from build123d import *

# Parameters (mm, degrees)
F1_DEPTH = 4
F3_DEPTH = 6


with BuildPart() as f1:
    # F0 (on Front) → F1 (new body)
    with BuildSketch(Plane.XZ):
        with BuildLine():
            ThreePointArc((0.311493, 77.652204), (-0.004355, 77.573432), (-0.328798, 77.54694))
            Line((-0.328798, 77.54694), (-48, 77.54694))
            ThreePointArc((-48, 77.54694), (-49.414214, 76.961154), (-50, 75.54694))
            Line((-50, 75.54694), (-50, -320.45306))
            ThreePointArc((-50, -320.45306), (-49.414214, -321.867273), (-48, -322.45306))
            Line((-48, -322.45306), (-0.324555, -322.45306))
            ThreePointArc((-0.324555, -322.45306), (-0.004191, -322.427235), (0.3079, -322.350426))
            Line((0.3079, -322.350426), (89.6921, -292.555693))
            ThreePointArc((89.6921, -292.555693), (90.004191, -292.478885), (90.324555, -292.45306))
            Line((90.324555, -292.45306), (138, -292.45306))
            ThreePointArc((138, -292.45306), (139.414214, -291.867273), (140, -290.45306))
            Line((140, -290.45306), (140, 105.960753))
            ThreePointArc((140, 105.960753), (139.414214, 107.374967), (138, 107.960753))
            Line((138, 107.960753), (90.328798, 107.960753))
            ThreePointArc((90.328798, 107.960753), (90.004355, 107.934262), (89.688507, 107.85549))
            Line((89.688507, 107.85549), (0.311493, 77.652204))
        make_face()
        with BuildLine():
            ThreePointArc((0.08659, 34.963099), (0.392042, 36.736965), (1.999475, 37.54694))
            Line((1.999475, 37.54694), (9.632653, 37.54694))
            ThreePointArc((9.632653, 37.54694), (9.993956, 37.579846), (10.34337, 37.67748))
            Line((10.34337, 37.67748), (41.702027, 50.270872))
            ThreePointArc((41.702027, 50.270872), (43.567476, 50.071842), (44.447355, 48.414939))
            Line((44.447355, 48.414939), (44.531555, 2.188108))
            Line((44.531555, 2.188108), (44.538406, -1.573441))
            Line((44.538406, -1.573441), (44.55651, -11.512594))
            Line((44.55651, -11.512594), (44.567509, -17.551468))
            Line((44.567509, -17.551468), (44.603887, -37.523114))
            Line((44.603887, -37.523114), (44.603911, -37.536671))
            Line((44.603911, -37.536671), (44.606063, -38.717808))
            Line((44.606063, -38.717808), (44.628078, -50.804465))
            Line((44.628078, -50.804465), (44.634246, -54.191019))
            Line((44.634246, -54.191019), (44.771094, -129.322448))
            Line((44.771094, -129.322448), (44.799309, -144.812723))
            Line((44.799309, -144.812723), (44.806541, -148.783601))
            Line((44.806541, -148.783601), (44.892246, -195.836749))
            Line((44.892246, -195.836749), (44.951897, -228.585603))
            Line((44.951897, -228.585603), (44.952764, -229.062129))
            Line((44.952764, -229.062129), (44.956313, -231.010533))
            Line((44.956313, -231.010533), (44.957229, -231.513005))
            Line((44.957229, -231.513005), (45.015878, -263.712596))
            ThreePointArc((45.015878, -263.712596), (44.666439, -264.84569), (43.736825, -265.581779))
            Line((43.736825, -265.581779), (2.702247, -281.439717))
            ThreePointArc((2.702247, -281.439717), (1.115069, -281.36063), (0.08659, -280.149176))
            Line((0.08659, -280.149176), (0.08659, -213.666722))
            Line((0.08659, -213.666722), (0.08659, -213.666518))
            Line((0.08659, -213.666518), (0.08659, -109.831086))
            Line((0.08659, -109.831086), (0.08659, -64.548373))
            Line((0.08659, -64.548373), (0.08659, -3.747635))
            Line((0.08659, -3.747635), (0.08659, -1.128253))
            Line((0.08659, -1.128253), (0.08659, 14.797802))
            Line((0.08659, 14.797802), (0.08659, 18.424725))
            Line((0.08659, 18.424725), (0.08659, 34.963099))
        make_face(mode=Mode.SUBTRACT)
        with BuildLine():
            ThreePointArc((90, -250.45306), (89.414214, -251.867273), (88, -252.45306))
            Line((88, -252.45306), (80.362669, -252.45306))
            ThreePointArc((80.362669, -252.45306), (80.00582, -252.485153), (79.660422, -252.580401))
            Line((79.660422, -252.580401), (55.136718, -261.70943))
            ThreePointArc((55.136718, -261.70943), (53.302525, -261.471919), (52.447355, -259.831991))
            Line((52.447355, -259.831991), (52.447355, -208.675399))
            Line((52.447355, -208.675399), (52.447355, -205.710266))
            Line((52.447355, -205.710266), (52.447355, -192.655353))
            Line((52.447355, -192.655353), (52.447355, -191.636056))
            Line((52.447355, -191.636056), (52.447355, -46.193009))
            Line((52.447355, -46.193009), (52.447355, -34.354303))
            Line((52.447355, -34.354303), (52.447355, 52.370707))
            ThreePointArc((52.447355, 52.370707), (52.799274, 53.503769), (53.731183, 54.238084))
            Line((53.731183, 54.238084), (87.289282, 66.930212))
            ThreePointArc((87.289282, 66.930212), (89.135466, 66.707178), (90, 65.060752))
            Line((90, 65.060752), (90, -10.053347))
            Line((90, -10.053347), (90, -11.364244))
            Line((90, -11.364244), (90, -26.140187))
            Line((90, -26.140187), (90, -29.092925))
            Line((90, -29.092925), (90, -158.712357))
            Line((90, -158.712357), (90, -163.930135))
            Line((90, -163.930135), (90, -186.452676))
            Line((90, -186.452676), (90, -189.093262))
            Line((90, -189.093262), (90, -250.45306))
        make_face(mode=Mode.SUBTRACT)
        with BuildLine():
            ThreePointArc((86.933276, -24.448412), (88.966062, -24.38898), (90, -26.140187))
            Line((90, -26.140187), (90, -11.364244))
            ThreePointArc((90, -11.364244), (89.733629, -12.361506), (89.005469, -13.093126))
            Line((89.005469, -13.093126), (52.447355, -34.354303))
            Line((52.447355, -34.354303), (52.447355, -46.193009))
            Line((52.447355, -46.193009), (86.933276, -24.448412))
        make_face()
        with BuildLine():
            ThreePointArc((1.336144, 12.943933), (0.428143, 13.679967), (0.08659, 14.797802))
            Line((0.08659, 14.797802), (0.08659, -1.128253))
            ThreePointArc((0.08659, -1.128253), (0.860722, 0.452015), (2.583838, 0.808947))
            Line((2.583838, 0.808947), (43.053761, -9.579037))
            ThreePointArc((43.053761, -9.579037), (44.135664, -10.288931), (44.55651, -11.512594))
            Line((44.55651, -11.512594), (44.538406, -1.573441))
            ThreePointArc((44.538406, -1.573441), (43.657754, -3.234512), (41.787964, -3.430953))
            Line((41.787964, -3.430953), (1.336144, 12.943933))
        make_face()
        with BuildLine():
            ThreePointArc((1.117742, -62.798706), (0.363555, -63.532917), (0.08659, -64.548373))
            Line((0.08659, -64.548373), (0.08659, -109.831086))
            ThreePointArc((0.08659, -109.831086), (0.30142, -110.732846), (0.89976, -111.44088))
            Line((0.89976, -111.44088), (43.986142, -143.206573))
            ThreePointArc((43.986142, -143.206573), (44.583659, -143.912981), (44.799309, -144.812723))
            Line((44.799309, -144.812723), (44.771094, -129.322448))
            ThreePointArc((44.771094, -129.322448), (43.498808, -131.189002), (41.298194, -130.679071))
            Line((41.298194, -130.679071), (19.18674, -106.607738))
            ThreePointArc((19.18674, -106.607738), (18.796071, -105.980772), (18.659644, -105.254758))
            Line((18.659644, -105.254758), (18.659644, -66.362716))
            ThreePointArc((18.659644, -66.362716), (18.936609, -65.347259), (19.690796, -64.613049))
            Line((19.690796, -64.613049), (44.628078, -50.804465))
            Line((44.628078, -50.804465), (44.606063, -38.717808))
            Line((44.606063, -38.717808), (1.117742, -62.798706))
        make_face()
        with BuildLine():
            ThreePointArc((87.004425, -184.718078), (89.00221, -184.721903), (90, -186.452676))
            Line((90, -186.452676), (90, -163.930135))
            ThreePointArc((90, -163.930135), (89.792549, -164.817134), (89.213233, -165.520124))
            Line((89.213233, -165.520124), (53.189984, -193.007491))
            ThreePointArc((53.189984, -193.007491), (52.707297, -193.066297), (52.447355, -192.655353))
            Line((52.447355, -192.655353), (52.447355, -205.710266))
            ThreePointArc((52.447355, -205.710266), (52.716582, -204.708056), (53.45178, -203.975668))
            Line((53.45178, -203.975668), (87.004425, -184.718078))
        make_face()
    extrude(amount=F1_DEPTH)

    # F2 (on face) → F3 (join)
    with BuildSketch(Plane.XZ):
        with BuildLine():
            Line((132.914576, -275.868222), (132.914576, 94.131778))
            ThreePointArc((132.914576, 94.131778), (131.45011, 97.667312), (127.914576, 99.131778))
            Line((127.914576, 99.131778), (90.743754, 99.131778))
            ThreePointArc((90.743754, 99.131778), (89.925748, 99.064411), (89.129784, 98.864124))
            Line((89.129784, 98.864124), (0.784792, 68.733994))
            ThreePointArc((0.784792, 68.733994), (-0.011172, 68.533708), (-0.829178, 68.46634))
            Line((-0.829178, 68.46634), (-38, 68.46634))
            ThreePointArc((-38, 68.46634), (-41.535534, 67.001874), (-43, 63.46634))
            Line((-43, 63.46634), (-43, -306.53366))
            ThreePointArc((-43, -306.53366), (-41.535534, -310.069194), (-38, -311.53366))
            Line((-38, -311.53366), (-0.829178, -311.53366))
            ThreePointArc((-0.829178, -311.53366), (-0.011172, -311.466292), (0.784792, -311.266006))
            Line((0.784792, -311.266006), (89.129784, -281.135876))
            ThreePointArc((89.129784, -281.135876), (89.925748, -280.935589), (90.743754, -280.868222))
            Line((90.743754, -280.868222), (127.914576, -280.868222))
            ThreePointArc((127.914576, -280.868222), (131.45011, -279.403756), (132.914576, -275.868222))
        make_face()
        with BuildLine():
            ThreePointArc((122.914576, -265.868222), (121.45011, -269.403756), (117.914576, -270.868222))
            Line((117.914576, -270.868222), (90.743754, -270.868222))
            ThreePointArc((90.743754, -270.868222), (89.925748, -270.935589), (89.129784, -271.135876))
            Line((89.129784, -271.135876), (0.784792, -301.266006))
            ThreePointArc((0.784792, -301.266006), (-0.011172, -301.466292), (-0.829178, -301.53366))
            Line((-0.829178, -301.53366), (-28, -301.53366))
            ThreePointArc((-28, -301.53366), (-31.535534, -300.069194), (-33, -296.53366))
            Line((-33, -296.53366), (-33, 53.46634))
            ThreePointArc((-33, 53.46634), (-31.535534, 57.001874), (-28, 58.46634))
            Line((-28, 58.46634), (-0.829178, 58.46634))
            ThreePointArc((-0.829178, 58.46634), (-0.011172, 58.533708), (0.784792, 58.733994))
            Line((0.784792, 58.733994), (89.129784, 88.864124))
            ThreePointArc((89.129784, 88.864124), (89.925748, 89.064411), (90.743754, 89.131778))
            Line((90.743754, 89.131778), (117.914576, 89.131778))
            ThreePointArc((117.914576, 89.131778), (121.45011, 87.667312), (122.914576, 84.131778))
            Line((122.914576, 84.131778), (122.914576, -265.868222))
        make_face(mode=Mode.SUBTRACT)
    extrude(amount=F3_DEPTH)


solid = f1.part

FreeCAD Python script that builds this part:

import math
import FreeCAD as App
import Part
import Sketcher

V = App.Vector

doc = App.newDocument("Part")
body = doc.addObject("PartDesign::Body", "Body")

sketch1 = body.newObject("Sketcher::SketchObject", "Sketch")
sketch1.AttachmentSupport = (doc.getObject("XZ_Plane"), [""])
sketch1.MapMode = "FlatFace"
sketch1.addGeometry(Part.ArcOfCircle(Part.Circle(V(-0.328805, 79.546967, 0), V(0, 0, 1), 2.000027), math.radians(-89.999809), math.radians(-71.328332)), False)
sketch1.addGeometry(Part.LineSegment(V(-0.328798, 77.54694, 0), V(-48, 77.54694, 0)), False)
sketch1.addGeometry(Part.ArcOfCircle(Part.Circle(V(-48.000001, 75.546941, 0), V(0, 0, 1), 1.999999), math.radians(89.999957), math.radians(180.000043)), False)
sketch1.addGeometry(Part.LineSegment(V(-50, 75.54694, 0), V(-50, -320.45306, 0)), False)
sketch1.addGeometry(Part.ArcOfCircle(Part.Circle(V(-48, -320.45306, 0), V(0, 0, 1), 2), math.radians(-179.999994), math.radians(-90.000006)), False)
sketch1.addGeometry(Part.LineSegment(V(-48, -322.45306, 0), V(-0.324555, -322.45306, 0)), False)
sketch1.addGeometry(Part.ArcOfCircle(Part.Circle(V(-0.324553, -320.453089, 0), V(0, 0, 1), 1.999971), math.radians(-90.000068), math.radians(-71.564863)), False)
sketch1.addGeometry(Part.LineSegment(V(0.3079, -322.350426, 0), V(89.6921, -292.555693, 0)), False)
sketch1.addGeometry(Part.ArcOfCircle(Part.Circle(V(90.324556, -294.453068, 0), V(0, 0, 1), 2.000008), math.radians(90.000017), math.radians(108.434876)), False)
sketch1.addGeometry(Part.LineSegment(V(90.324555, -292.45306, 0), V(138, -292.45306, 0)), False)
sketch1.addGeometry(Part.ArcOfCircle(Part.Circle(V(138, -290.45306, 0), V(0, 0, 1), 2), math.radians(-89.999994), math.radians(-0.000006)), False)
sketch1.addGeometry(Part.LineSegment(V(140, -290.45306, 0), V(140, 105.960753, 0)), False)
sketch1.addGeometry(Part.ArcOfCircle(Part.Circle(V(138.000001, 105.960754, 0), V(0, 0, 1), 1.999999), math.radians(-0.000043), math.radians(90.000043)), False)
sketch1.addGeometry(Part.LineSegment(V(138, 107.960753, 0), V(90.328798, 107.960753, 0)), False)
sketch1.addGeometry(Part.ArcOfCircle(Part.Circle(V(90.328796, 105.960764, 0), V(0, 0, 1), 1.999989), math.radians(89.999928), math.radians(108.671756)), False)
sketch1.addGeometry(Part.LineSegment(V(89.688507, 107.85549, 0), V(0.311493, 77.652204, 0)), False)
sketch1.addGeometry(Part.LineSegment(V(0.08659, -280.149176, 0), V(0.08659, -109.831086, 0)), False)
sketch1.addGeometry(Part.ArcOfCircle(Part.Circle(V(2.086586, -109.831089, 0), V(0, 0, 1), 1.999996), math.radians(179.999926), math.radians(233.600331)), False)
sketch1.addGeometry(Part.LineSegment(V(0.89976, -111.44088, 0), V(43.986142, -143.206573, 0)), False)
sketch1.addGeometry(Part.ArcOfCircle(Part.Circle(V(42.799309, -144.816368, 0), V(0, 0, 1), 2.000003), math.radians(0.104424), math.radians(53.600244)), False)
sketch1.addGeometry(Part.LineSegment(V(44.799309, -144.812723, 0), V(44.806541, -148.783601, 0)), False)
sketch1.addGeometry(Part.LineSegment(V(44.806541, -148.783601, 0), V(44.892246, -195.836749, 0)), False)
sketch1.addGeometry(Part.LineSegment(V(44.892246, -195.836749, 0), V(44.951897, -228.585603, 0)), False)
sketch1.addGeometry(Part.LineSegment(V(44.951897, -228.585603, 0), V(44.952764, -229.062129, 0)), False)
sketch1.addGeometry(Part.LineSegment(V(44.952764, -229.062129, 0), V(44.956313, -231.010533, 0)), False)
sketch1.addGeometry(Part.LineSegment(V(44.956313, -231.010533, 0), V(44.957229, -231.513005, 0)), False)
sketch1.addGeometry(Part.LineSegment(V(44.957229, -231.513005, 0), V(45.015878, -263.712596, 0)), False)
sketch1.addGeometry(Part.ArcOfCircle(Part.Circle(V(43.015882, -263.716239, 0), V(0, 0, 1), 1.999999), math.radians(-68.870839), math.radians(0.104374)), False)
sketch1.addGeometry(Part.LineSegment(V(43.736825, -265.581779, 0), V(2.702247, -281.439717, 0)), False)
sketch1.addGeometry(Part.ArcOfCircle(Part.Circle(V(2, -279.56706, 0), V(0, 0, 1), 1.999999), math.radians(-163.078684), math.radians(-69.443928)), False)
sketch1.addGeometry(Part.LineSegment(V(0.08659, -64.548373, 0), V(0.08659, -1.128253, 0)), False)
sketch1.addGeometry(Part.ArcOfCircle(Part.Circle(V(2.08659, -1.128253, 0), V(0, 0, 1), 2), math.radians(75.603901), math.radians(179.999992)), False)
sketch1.addGeometry(Part.LineSegment(V(2.583838, 0.808947, 0), V(43.053761, -9.579037, 0)), False)
sketch1.addGeometry(Part.ArcOfCircle(Part.Circle(V(42.556511, -11.516239, 0), V(0, 0, 1), 2.000002), math.radians(0.104424), math.radians(75.603854)), False)
sketch1.addGeometry(Part.LineSegment(V(44.55651, -11.512594, 0), V(44.567509, -17.551468, 0)), False)
sketch1.addGeometry(Part.LineSegment(V(44.567509, -17.551468, 0), V(44.603887, -37.523114, 0)), False)
sketch1.addGeometry(Part.LineSegment(V(44.603887, -37.523114, 0), V(44.603911, -37.536671, 0)), False)
sketch1.addGeometry(Part.LineSegment(V(44.603911, -37.536671, 0), V(44.606063, -38.717808, 0)), False)
sketch1.addGeometry(Part.LineSegment(V(44.606063, -38.717808, 0), V(1.117742, -62.798706, 0)), False)
sketch1.addGeometry(Part.ArcOfCircle(Part.Circle(V(2.08659, -64.548373, 0), V(0, 0, 1), 2), math.radians(118.974744), math.radians(180.000006)), False)
sketch1.addGeometry(Part.LineSegment(V(44.628078, -50.804465, 0), V(44.634246, -54.191019, 0)), False)
sketch1.addGeometry(Part.LineSegment(V(44.634246, -54.191019, 0), V(44.771094, -129.322448, 0)), False)
sketch1.addGeometry(Part.ArcOfCircle(Part.Circle(V(42.771098, -129.326091, 0), V(0, 0, 1), 2), math.radians(-137.430038), math.radians(0.10437)), False)
sketch1.addGeometry(Part.LineSegment(V(41.298194, -130.679071, 0), V(19.18674, -106.607738, 0)), False)
sketch1.addGeometry(Part.ArcOfCircle(Part.Circle(V(20.659644, -105.254759, 0), V(0, 0, 1), 2), math.radians(179.999986), math.radians(222.569952)), False)
sketch1.addGeometry(Part.LineSegment(V(18.659644, -105.254758, 0), V(18.659644, -66.362716, 0)), False)
sketch1.addGeometry(Part.ArcOfCircle(Part.Circle(V(20.659641, -66.362714, 0), V(0, 0, 1), 1.999997), math.radians(118.974691), math.radians(180.000059)), False)
sketch1.addGeometry(Part.LineSegment(V(19.690796, -64.613049, 0), V(44.628078, -50.804465, 0)), False)
sketch1.addGeometry(Part.LineSegment(V(0.08659, 14.797802, 0), V(0.08659, 34.963099, 0)), False)
sketch1.addGeometry(Part.ArcOfCircle(Part.Circle(V(1.999475, 35.54694, 0), V(0, 0, 1), 2), math.radians(89.999992), math.radians(196.972981)), False)
sketch1.addGeometry(Part.LineSegment(V(1.999475, 37.54694, 0), V(9.632653, 37.54694, 0)), False)
sketch1.addGeometry(Part.ArcOfCircle(Part.Circle(V(9.63265, 39.546955, 0), V(0, 0, 1), 2.000015), math.radians(-89.999908), math.radians(-69.184647)), False)
sketch1.addGeometry(Part.LineSegment(V(10.34337, 37.67748, 0), V(41.702027, 50.270872, 0)), False)
sketch1.addGeometry(Part.ArcOfCircle(Part.Circle(V(42.447354, 48.414938, 0), V(0, 0, 1), 2.000001), math.radians(0.000024), math.radians(111.879975)), False)
sketch1.addGeometry(Part.LineSegment(V(44.447355, 48.414939, 0), V(44.531555, 2.188108, 0)), False)
sketch1.addGeometry(Part.LineSegment(V(44.531555, 2.188108, 0), V(44.538406, -1.573441, 0)), False)
sketch1.addGeometry(Part.ArcOfCircle(Part.Circle(V(42.53841, -1.577084, 0), V(0, 0, 1), 2), math.radians(-112.038095), math.radians(0.104372)), False)
sketch1.addGeometry(Part.LineSegment(V(41.787964, -3.430953, 0), V(1.336144, 12.943933, 0)), False)
sketch1.addGeometry(Part.ArcOfCircle(Part.Circle(V(2.086588, 14.797801, 0), V(0, 0, 1), 1.999998), math.radians(179.999961), math.radians(247.961947)), False)
sketch1.addGeometry(Part.LineSegment(V(90, 65.060752, 0), V(90, -11.364244, 0)), False)
sketch1.addGeometry(Part.ArcOfCircle(Part.Circle(V(88.000001, -11.364245, 0), V(0, 0, 1), 1.999999), math.radians(-59.818935), math.radians(0.000021)), False)
sketch1.addGeometry(Part.LineSegment(V(89.005469, -13.093126, 0), V(52.447355, -34.354303, 0)), False)
sketch1.addGeometry(Part.LineSegment(V(52.447355, -34.354303, 0), V(52.447355, 52.370707, 0)), False)
sketch1.addGeometry(Part.ArcOfCircle(Part.Circle(V(54.447354, 52.370708, 0), V(0, 0, 1), 1.999999), math.radians(110.982675), math.radians(180.000016)), False)
sketch1.addGeometry(Part.LineSegment(V(53.731183, 54.238084, 0), V(87.289282, 66.930212, 0)), False)
sketch1.addGeometry(Part.ArcOfCircle(Part.Circle(V(88, 65.060753, 0), V(0, 0, 1), 2), math.radians(-0.000019), math.radians(110.815461)), False)
sketch1.addGeometry(Part.LineSegment(V(90, -26.140187, 0), V(90, -163.930135, 0)), False)
sketch1.addGeometry(Part.ArcOfCircle(Part.Circle(V(87.999999, -163.930134, 0), V(0, 0, 1), 2.000001), math.radians(-52.654731), math.radians(-0.000021)), False)
sketch1.addGeometry(Part.LineSegment(V(89.213233, -165.520124, 0), V(53.189984, -193.007491, 0)), False)
sketch1.addGeometry(Part.ArcOfCircle(Part.Circle(V(52.902157, -192.655354, 0), V(0, 0, 1), 0.454802), math.radians(179.999937), math.radians(309.261548)), False)
sketch1.addGeometry(Part.LineSegment(V(52.447355, -192.655353, 0), V(52.447355, -46.193009, 0)), False)
sketch1.addGeometry(Part.LineSegment(V(52.447355, -46.193009, 0), V(86.933276, -24.448412, 0)), False)
sketch1.addGeometry(Part.ArcOfCircle(Part.Circle(V(88, -26.140187, 0), V(0, 0, 1), 2), math.radians(-0.00001), math.radians(122.232881)), False)
sketch1.addGeometry(Part.LineSegment(V(90, -186.452676, 0), V(90, -250.45306, 0)), False)
sketch1.addGeometry(Part.ArcOfCircle(Part.Circle(V(88, -250.45306, 0), V(0, 0, 1), 2), math.radians(-89.999994), math.radians(-0.000006)), False)
sketch1.addGeometry(Part.LineSegment(V(88, -252.45306, 0), V(80.362669, -252.45306, 0)), False)
sketch1.addGeometry(Part.ArcOfCircle(Part.Circle(V(80.362673, -254.453093, 0), V(0, 0, 1), 2.000033), math.radians(90.000118), math.radians(110.555822)), False)
sketch1.addGeometry(Part.LineSegment(V(79.660422, -252.580401, 0), V(55.136718, -261.70943, 0)), False)
sketch1.addGeometry(Part.ArcOfCircle(Part.Circle(V(54.447355, -259.831991, 0), V(0, 0, 1), 2), math.radians(179.999999), math.radians(290.162366)), False)
sketch1.addGeometry(Part.LineSegment(V(52.447355, -259.831991, 0), V(52.447355, -205.710266, 0)), False)
sketch1.addGeometry(Part.ArcOfCircle(Part.Circle(V(54.447355, -205.710266, 0), V(0, 0, 1), 2), math.radians(119.853725), math.radians(180.000003)), False)
sketch1.addGeometry(Part.LineSegment(V(53.45178, -203.975668, 0), V(87.004425, -184.718078, 0)), False)
sketch1.addGeometry(Part.ArcOfCircle(Part.Circle(V(88, -186.452676, 0), V(0, 0, 1), 2), math.radians(-0.000002), math.radians(119.853733)), False)
sketch1.addConstraint(Sketcher.Constraint("Coincident", 0, 1, 1, 1))
sketch1.addConstraint(Sketcher.Constraint("Coincident", 1, 2, 2, 1))
sketch1.addConstraint(Sketcher.Constraint("Coincident", 2, 2, 3, 1))
sketch1.addConstraint(Sketcher.Constraint("Coincident", 3, 2, 4, 1))
sketch1.addConstraint(Sketcher.Constraint("Coincident", 4, 2, 5, 1))
sketch1.addConstraint(Sketcher.Constraint("Coincident", 5, 2, 6, 1))
sketch1.addConstraint(Sketcher.Constraint("Coincident", 6, 2, 7, 1))
sketch1.addConstraint(Sketcher.Constraint("Coincident", 7, 2, 8, 2))
sketch1.addConstraint(Sketcher.Constraint("Coincident", 8, 1, 9, 1))
sketch1.addConstraint(Sketcher.Constraint("Coincident", 9, 2, 10, 1))
sketch1.addConstraint(Sketcher.Constraint("Coincident", 10, 2, 11, 1))
sketch1.addConstraint(Sketcher.Constraint("Coincident", 11, 2, 12, 1))
sketch1.addConstraint(Sketcher.Constraint("Coincident", 12, 2, 13, 1))
sketch1.addConstraint(Sketcher.Constraint("Coincident", 13, 2, 14, 1))
sketch1.addConstraint(Sketcher.Constraint("Coincident", 14, 2, 15, 1))
sketch1.addConstraint(Sketcher.Constraint("Coincident", 15, 2, 0, 2))
sketch1.addConstraint(Sketcher.Constraint("Coincident", 16, 2, 17, 1))
sketch1.addConstraint(Sketcher.Constraint("Coincident", 17, 2, 18, 1))
sketch1.addConstraint(Sketcher.Constraint("Coincident", 18, 2, 19, 2))
sketch1.addConstraint(Sketcher.Constraint("Coincident", 19, 1, 20, 1))
sketch1.addConstraint(Sketcher.Constraint("Coincident", 20, 2, 21, 1))
sketch1.addConstraint(Sketcher.Constraint("Coincident", 21, 2, 22, 1))
sketch1.addConstraint(Sketcher.Constraint("Coincident", 22, 2, 23, 1))
sketch1.addConstraint(Sketcher.Constraint("Coincident", 23, 2, 24, 1))
sketch1.addConstraint(Sketcher.Constraint("Coincident", 24, 2, 25, 1))
sketch1.addConstraint(Sketcher.Constraint("Coincident", 25, 2, 26, 1))
sketch1.addConstraint(Sketcher.Constraint("Coincident", 26, 2, 27, 2))
sketch1.addConstraint(Sketcher.Constraint("Coincident", 27, 1, 28, 1))
sketch1.addConstraint(Sketcher.Constraint("Coincident", 28, 2, 29, 2))
sketch1.addConstraint(Sketcher.Constraint("Coincident", 29, 1, 16, 1))
sketch1.addConstraint(Sketcher.Constraint("Coincident", 30, 2, 31, 2))
sketch1.addConstraint(Sketcher.Constraint("Coincident", 31, 1, 32, 1))
sketch1.addConstraint(Sketcher.Constraint("Coincident", 32, 2, 33, 2))
sketch1.addConstraint(Sketcher.Constraint("Coincident", 33, 1, 34, 1))
sketch1.addConstraint(Sketcher.Constraint("Coincident", 34, 2, 35, 1))
sketch1.addConstraint(Sketcher.Constraint("Coincident", 35, 2, 36, 1))
sketch1.addConstraint(Sketcher.Constraint("Coincident", 36, 2, 37, 1))
sketch1.addConstraint(Sketcher.Constraint("Coincident", 37, 2, 38, 1))
sketch1.addConstraint(Sketcher.Constraint("Coincident", 38, 2, 39, 1))
sketch1.addConstraint(Sketcher.Constraint("Coincident", 39, 2, 30, 1))
sketch1.addConstraint(Sketcher.Constraint("Coincident", 40, 2, 41, 1))
sketch1.addConstraint(Sketcher.Constraint("Coincident", 41, 2, 42, 2))
sketch1.addConstraint(Sketcher.Constraint("Coincident", 42, 1, 43, 1))
sketch1.addConstraint(Sketcher.Constraint("Coincident", 43, 2, 44, 2))
sketch1.addConstraint(Sketcher.Constraint("Coincident", 44, 1, 45, 1))
sketch1.addConstraint(Sketcher.Constraint("Coincident", 45, 2, 46, 2))
sketch1.addConstraint(Sketcher.Constraint("Coincident", 46, 1, 47, 1))
sketch1.addConstraint(Sketcher.Constraint("Coincident", 47, 2, 40, 1))
sketch1.addConstraint(Sketcher.Constraint("Coincident", 48, 2, 49, 2))
sketch1.addConstraint(Sketcher.Constraint("Coincident", 49, 1, 50, 1))
sketch1.addConstraint(Sketcher.Constraint("Coincident", 50, 2, 51, 1))
sketch1.addConstraint(Sketcher.Constraint("Coincident", 51, 2, 52, 1))
sketch1.addConstraint(Sketcher.Constraint("Coincident", 52, 2, 53, 2))
sketch1.addConstraint(Sketcher.Constraint("Coincident", 53, 1, 54, 1))
sketch1.addConstraint(Sketcher.Constraint("Coincident", 54, 2, 55, 1))
sketch1.addConstraint(Sketcher.Constraint("Coincident", 55, 2, 56, 2))
sketch1.addConstraint(Sketcher.Constraint("Coincident", 56, 1, 57, 1))
sketch1.addConstraint(Sketcher.Constraint("Coincident", 57, 2, 58, 2))
sketch1.addConstraint(Sketcher.Constraint("Coincident", 58, 1, 48, 1))
sketch1.addConstraint(Sketcher.Constraint("Coincident", 59, 2, 60, 2))
sketch1.addConstraint(Sketcher.Constraint("Coincident", 60, 1, 61, 1))
sketch1.addConstraint(Sketcher.Constraint("Coincident", 61, 2, 62, 1))
sketch1.addConstraint(Sketcher.Constraint("Coincident", 62, 2, 63, 2))
sketch1.addConstraint(Sketcher.Constraint("Coincident", 63, 1, 64, 1))
sketch1.addConstraint(Sketcher.Constraint("Coincident", 64, 2, 65, 2))
sketch1.addConstraint(Sketcher.Constraint("Coincident", 65, 1, 59, 1))
sketch1.addConstraint(Sketcher.Constraint("Coincident", 66, 2, 67, 2))
sketch1.addConstraint(Sketcher.Constraint("Coincident", 67, 1, 68, 1))
sketch1.addConstraint(Sketcher.Constraint("Coincident", 68, 2, 69, 2))
sketch1.addConstraint(Sketcher.Constraint("Coincident", 69, 1, 70, 1))
sketch1.addConstraint(Sketcher.Constraint("Coincident", 70, 2, 71, 1))
sketch1.addConstraint(Sketcher.Constraint("Coincident", 71, 2, 72, 2))
sketch1.addConstraint(Sketcher.Constraint("Coincident", 72, 1, 66, 1))
sketch1.addConstraint(Sketcher.Constraint("Coincident", 73, 2, 74, 2))
sketch1.addConstraint(Sketcher.Constraint("Coincident", 74, 1, 75, 1))
sketch1.addConstraint(Sketcher.Constraint("Coincident", 75, 2, 76, 1))
sketch1.addConstraint(Sketcher.Constraint("Coincident", 76, 2, 77, 1))
sketch1.addConstraint(Sketcher.Constraint("Coincident", 77, 2, 78, 2))
sketch1.addConstraint(Sketcher.Constraint("Coincident", 78, 1, 79, 1))
sketch1.addConstraint(Sketcher.Constraint("Coincident", 79, 2, 80, 2))
sketch1.addConstraint(Sketcher.Constraint("Coincident", 80, 1, 81, 1))
sketch1.addConstraint(Sketcher.Constraint("Coincident", 81, 2, 82, 2))
sketch1.addConstraint(Sketcher.Constraint("Coincident", 82, 1, 73, 1))
sketch1.addConstraint(Sketcher.Constraint("Horizontal", 1))
sketch1.addConstraint(Sketcher.Constraint("Vertical", 3))
sketch1.addConstraint(Sketcher.Constraint("Horizontal", 5))
sketch1.addConstraint(Sketcher.Constraint("Horizontal", 9))
sketch1.addConstraint(Sketcher.Constraint("Vertical", 11))
sketch1.addConstraint(Sketcher.Constraint("Horizontal", 13))
sketch1.addConstraint(Sketcher.Constraint("Vertical", 16))
sketch1.addConstraint(Sketcher.Constraint("Vertical", 30))
sketch1.addConstraint(Sketcher.Constraint("Vertical", 45))
sketch1.addConstraint(Sketcher.Constraint("Vertical", 48))
sketch1.addConstraint(Sketcher.Constraint("Horizontal", 50))
sketch1.addConstraint(Sketcher.Constraint("Vertical", 59))
sketch1.addConstraint(Sketcher.Constraint("Vertical", 62))
sketch1.addConstraint(Sketcher.Constraint("Vertical", 66))
sketch1.addConstraint(Sketcher.Constraint("Vertical", 70))
sketch1.addConstraint(Sketcher.Constraint("Vertical", 73))
sketch1.addConstraint(Sketcher.Constraint("Horizontal", 75))
sketch1.addConstraint(Sketcher.Constraint("Vertical", 79))
sketch1.addConstraint(Sketcher.Constraint("Radius", 2, 1.999999))
sketch1.addConstraint(Sketcher.Constraint("Radius", 4, 2.0))
sketch1.addConstraint(Sketcher.Constraint("Radius", 10, 2.0))
sketch1.addConstraint(Sketcher.Constraint("Radius", 12, 1.999999))
sketch1.addConstraint(Sketcher.Constraint("Radius", 27, 1.999999))
sketch1.addConstraint(Sketcher.Constraint("Radius", 29, 1.999999))
sketch1.addConstraint(Sketcher.Constraint("Radius", 31, 2.0))
sketch1.addConstraint(Sketcher.Constraint("Radius", 39, 2.0))
sketch1.addConstraint(Sketcher.Constraint("Radius", 42, 2.0))
sketch1.addConstraint(Sketcher.Constraint("Radius", 44, 2.0))
sketch1.addConstraint(Sketcher.Constraint("Radius", 49, 2.0))
sketch1.addConstraint(Sketcher.Constraint("Radius", 53, 2.000001))
sketch1.addConstraint(Sketcher.Constraint("Radius", 56, 2.0))
sketch1.addConstraint(Sketcher.Constraint("Radius", 60, 1.999999))
sketch1.addConstraint(Sketcher.Constraint("Radius", 63, 1.999999))
sketch1.addConstraint(Sketcher.Constraint("Radius", 65, 2.0))
sketch1.addConstraint(Sketcher.Constraint("Radius", 67, 2.000001))
sketch1.addConstraint(Sketcher.Constraint("Radius", 72, 2.0))
sketch1.addConstraint(Sketcher.Constraint("Radius", 74, 2.0))
sketch1.addConstraint(Sketcher.Constraint("Radius", 78, 2.0))
sketch1.addConstraint(Sketcher.Constraint("Radius", 80, 2.0))
sketch1.addConstraint(Sketcher.Constraint("Radius", 82, 2.0))
sketch1.addConstraint(Sketcher.Constraint("DistanceY", 3, 2, 3, 1, 396.0))
sketch1.addConstraint(Sketcher.Constraint("DistanceX", 2, 3, -1, 1, 48.000001))
sketch1.addConstraint(Sketcher.Constraint("DistanceX", -1, 1, 10, 3, 138.0))
sketch1.addConstraint(Sketcher.Constraint("DistanceX", -1, 1, 29, 3, 2.0))
sketch1.addConstraint(Sketcher.Constraint("DistanceX", -1, 1, 60, 3, 88.000001))
sketch1.addConstraint(Sketcher.Constraint("DistanceX", -1, 1, 67, 3, 87.999999))
sketch1.addConstraint(Sketcher.Constraint("DistanceX", -1, 1, 74, 3, 88.0))
sketch1.addConstraint(Sketcher.Constraint("DistanceX", 1, 2, -1, 1, 48.0))
sketch1.addConstraint(Sketcher.Constraint("DistanceX", 4, 2, -1, 1, 48.0))
sketch1.addConstraint(Sketcher.Constraint("DistanceX", -1, 1, 9, 2, 138.0))
sketch1.addConstraint(Sketcher.Constraint("DistanceX", -1, 1, 12, 2, 138.0))
sketch1.addConstraint(Sketcher.Constraint("DistanceX", -1, 1, 74, 1, 88.0))
sketch1.addConstraint(Sketcher.Constraint("Radius", 6, 1.999971))
sketch1.addConstraint(Sketcher.Constraint("Radius", 14, 1.999989))
sketch1.addConstraint(Sketcher.Constraint("DistanceX", 13, 2, 13, 1, 47.671202))
sketch1.addConstraint(Sketcher.Constraint("Radius", 0, 2.000027))
sketch1.addConstraint(Sketcher.Constraint("Radius", 8, 2.000008))
sketch1.addConstraint(Sketcher.Constraint("Radius", 17, 1.999996))
sketch1.addConstraint(Sketcher.Constraint("Radius", 19, 2.000003))
sketch1.addConstraint(Sketcher.Constraint("Radius", 33, 2.000002))
sketch1.addConstraint(Sketcher.Constraint("Radius", 46, 1.999997))
sketch1.addConstraint(Sketcher.Constraint("Radius", 51, 2.000015))
sketch1.addConstraint(Sketcher.Constraint("Radius", 58, 1.999998))
sketch1.addConstraint(Sketcher.Constraint("Radius", 69, 0.454802))
sketch1.addConstraint(Sketcher.Constraint("Radius", 76, 2.000033))
sketch1.addConstraint(Sketcher.Constraint("Distance", 38, 49.710398))
sketch1.addConstraint(Sketcher.Constraint("DistanceX", 75, 2, 75, 1, 7.637331))
sketch1.addConstraint(Sketcher.Constraint("DistanceY", 16, 1, 16, 2, 170.31809))
sketch1.addConstraint(Sketcher.Constraint("DistanceY", 30, 1, 30, 2, 63.42012))
sketch1.addConstraint(Sketcher.Constraint("DistanceY", 45, 1, 45, 2, 38.892042))
sketch1.addConstraint(Sketcher.Constraint("DistanceY", 62, 1, 62, 2, 86.72501))
sketch1.addConstraint(Sketcher.Constraint("DistanceY", 66, 2, 66, 1, 137.789948))
sketch1.addConstraint(Sketcher.Constraint("DistanceY", -1, 1, 58, 3, 14.797801))
sketch1.addConstraint(Sketcher.Constraint("DistanceX", 0, 1, -1, 1, 0.328798))
sketch1.addConstraint(Sketcher.Constraint("DistanceX", -1, 1, 6, 2, 0.3079))
sketch1.addConstraint(Sketcher.Constraint("DistanceX", -1, 1, 7, 2, 89.6921))
sketch1.addConstraint(Sketcher.Constraint("DistanceY", 20, 2, -1, 1, 148.783601))
sketch1.addConstraint(Sketcher.Constraint("DistanceY", -1, 1, 48, 2, 34.963099))
sketch1.addConstraint(Sketcher.Constraint("DistanceY", 76, 2, -1, 1, 252.580401))
sketch1.addConstraint(Sketcher.Constraint("Distance", 7, 94.21922))
sketch1.addConstraint(Sketcher.Constraint("Distance", 22, 32.748908))
sketch1.addConstraint(Sketcher.Constraint("Distance", 35, 19.971679))
sketch1.addConstraint(Sketcher.Constraint("Distance", 37, 1.181139))
sketch1.addConstraint(Sketcher.Constraint("Distance", 40, 3.38656))
sketch1.addConstraint(Sketcher.Constraint("Distance", 68, 45.312579))
sketch1.addConstraint(Sketcher.Constraint("Distance", 77, 26.167752))
sketch1.addConstraint(Sketcher.Constraint("DistanceX", 5, 1, 5, 2, 47.675445))
sketch1.addConstraint(Sketcher.Constraint("DistanceX", 9, 1, 9, 2, 47.675445))
sketch1.addConstraint(Sketcher.Constraint("DistanceX", 50, 1, 50, 2, 7.633178))
sketch1.addConstraint(Sketcher.Constraint("DistanceY", 11, 1, 11, 2, 396.413813))
sketch1.addConstraint(Sketcher.Constraint("DistanceY", 48, 1, 48, 2, 20.165297))
sketch1.addConstraint(Sketcher.Constraint("DistanceY", 59, 2, 59, 1, 76.424996))
sketch1.addConstraint(Sketcher.Constraint("DistanceY", 70, 1, 70, 2, 146.462344))
sketch1.addConstraint(Sketcher.Constraint("DistanceY", 73, 2, 73, 1, 64.000384))
sketch1.addConstraint(Sketcher.Constraint("DistanceY", 79, 1, 79, 2, 54.121725))
sketch1.addConstraint(Sketcher.Constraint("DistanceY", -1, 1, 2, 3, 75.546941))
sketch1.addConstraint(Sketcher.Constraint("DistanceY", 4, 3, -1, 1, 320.45306))
sketch1.addConstraint(Sketcher.Constraint("DistanceY", 10, 3, -1, 1, 290.45306))
sketch1.addConstraint(Sketcher.Constraint("DistanceY", 17, 3, -1, 1, 109.831089))
sketch1.addConstraint(Sketcher.Constraint("DistanceX", -1, 1, 19, 3, 42.799309))
sketch1.addConstraint(Sketcher.Constraint("DistanceY", 19, 3, -1, 1, 144.816368))
sketch1.addConstraint(Sketcher.Constraint("DistanceY", 27, 3, -1, 1, 263.716239))
sketch1.addConstraint(Sketcher.Constraint("DistanceY", 29, 3, -1, 1, 279.56706))
sketch1.addConstraint(Sketcher.Constraint("DistanceX", -1, 1, 31, 3, 2.08659))
sketch1.addConstraint(Sketcher.Constraint("DistanceX", -1, 1, 33, 3, 42.556511))
sketch1.addConstraint(Sketcher.Constraint("DistanceY", 33, 3, -1, 1, 11.516239))
sketch1.addConstraint(Sketcher.Constraint("DistanceY", 42, 3, -1, 1, 129.326091))
sketch1.addConstraint(Sketcher.Constraint("DistanceY", 44, 3, -1, 1, 105.254759))
sketch1.addConstraint(Sketcher.Constraint("DistanceX", -1, 1, 46, 3, 20.659641))
sketch1.addConstraint(Sketcher.Constraint("DistanceY", -1, 1, 49, 3, 35.54694))
sketch1.addConstraint(Sketcher.Constraint("DistanceX", -1, 1, 51, 3, 9.63265))
sketch1.addConstraint(Sketcher.Constraint("DistanceY", -1, 1, 53, 3, 48.414938))
sketch1.addConstraint(Sketcher.Constraint("DistanceX", -1, 1, 56, 3, 42.53841))
sketch1.addConstraint(Sketcher.Constraint("DistanceY", 74, 3, -1, 1, 250.45306))
sketch1.addConstraint(Sketcher.Constraint("DistanceY", 78, 3, -1, 1, 259.831991))
sketch1.addConstraint(Sketcher.Constraint("DistanceY", -1, 1, 2, 2, 75.54694))
sketch1.addConstraint(Sketcher.Constraint("DistanceY", 10, 2, -1, 1, 290.45306))
sketch1.addConstraint(Sketcher.Constraint("DistanceY", -1, 1, 14, 2, 107.85549))
sketch1.addConstraint(Sketcher.Constraint("DistanceX", -1, 1, 16, 2, 0.08659))
sketch1.addConstraint(Sketcher.Constraint("DistanceX", -1, 1, 17, 2, 0.89976))
sketch1.addConstraint(Sketcher.Constraint("DistanceX", -1, 1, 20, 2, 44.806541))
sketch1.addConstraint(Sketcher.Constraint("DistanceY", 21, 2, -1, 1, 195.836749))
sketch1.addConstraint(Sketcher.Constraint("DistanceY", 23, 2, -1, 1, 229.062129))
sketch1.addConstraint(Sketcher.Constraint("DistanceX", -1, 1, 25, 2, 44.957229))
sketch1.addConstraint(Sketcher.Constraint("DistanceY", 27, 1, -1, 1, 265.581779))
sketch1.addConstraint(Sketcher.Constraint("DistanceX", -1, 1, 31, 1, 2.583838))
sketch1.addConstraint(Sketcher.Constraint("DistanceX", -1, 1, 32, 2, 43.053761))
sketch1.addConstraint(Sketcher.Constraint("DistanceX", -1, 1, 34, 2, 44.567509))
sketch1.addConstraint(Sketcher.Constraint("DistanceY", 34, 2, -1, 1, 17.551468))
sketch1.addConstraint(Sketcher.Constraint("DistanceX", -1, 1, 36, 2, 44.603911))
sketch1.addConstraint(Sketcher.Constraint("DistanceY", 36, 2, -1, 1, 37.536671))
sketch1.addConstraint(Sketcher.Constraint("DistanceY", 40, 2, -1, 1, 54.191019))
sketch1.addConstraint(Sketcher.Constraint("DistanceY", 41, 2, -1, 1, 129.322448))
sketch1.addConstraint(Sketcher.Constraint("DistanceY", 42, 1, -1, 1, 130.679071))
sketch1.addConstraint(Sketcher.Constraint("DistanceX", -1, 1, 43, 2, 19.18674))
sketch1.addConstraint(Sketcher.Constraint("DistanceY", 46, 1, -1, 1, 64.613049))
sketch1.addConstraint(Sketcher.Constraint("DistanceX", -1, 1, 47, 2, 44.628078))
sketch1.addConstraint(Sketcher.Constraint("DistanceX", -1, 1, 48, 2, 0.08659))
sketch1.addConstraint(Sketcher.Constraint("DistanceX", -1, 1, 51, 2, 10.34337))
sketch1.addConstraint(Sketcher.Constraint("DistanceY", -1, 1, 52, 2, 50.270872))
sketch1.addConstraint(Sketcher.Constraint("DistanceY", -1, 1, 53, 1, 48.414939))
sketch1.addConstraint(Sketcher.Constraint("DistanceY", -1, 1, 54, 2, 2.188108))
sketch1.addConstraint(Sketcher.Constraint("DistanceY", 55, 2, -1, 1, 1.573441))
sketch1.addConstraint(Sketcher.Constraint("DistanceX", -1, 1, 60, 1, 89.005469))
sketch1.addConstraint(Sketcher.Constraint("DistanceX", -1, 1, 64, 2, 87.289282))
sketch1.addConstraint(Sketcher.Constraint("DistanceY", -1, 1, 64, 2, 66.930212))
sketch1.addConstraint(Sketcher.Constraint("DistanceY", -1, 1, 65, 1, 65.060752))
sketch1.addConstraint(Sketcher.Constraint("DistanceY", 68, 2, -1, 1, 193.007491))
sketch1.addConstraint(Sketcher.Constraint("DistanceY", 70, 2, -1, 1, 46.193009))
sketch1.addConstraint(Sketcher.Constraint("DistanceY", 73, 2, -1, 1, 250.45306))
sketch1.addConstraint(Sketcher.Constraint("DistanceX", -1, 1, 77, 2, 55.136718))
sketch1.addConstraint(Sketcher.Constraint("DistanceY", 77, 2, -1, 1, 261.70943))
sketch1.addConstraint(Sketcher.Constraint("DistanceY", 78, 1, -1, 1, 259.831991))
sketch1.addConstraint(Sketcher.Constraint("DistanceX", -1, 1, 80, 1, 53.45178))
sketch1.addConstraint(Sketcher.Constraint("DistanceY", 81, 2, -1, 1, 184.718078))
sketch1.addConstraint(Sketcher.Constraint("Distance", 15, 94.342404))
sketch1.addConstraint(Sketcher.Constraint("Distance", 18, 53.530324))
sketch1.addConstraint(Sketcher.Constraint("Distance", 20, 3.970885))
sketch1.addConstraint(Sketcher.Constraint("Distance", 24, 1.948407))
sketch1.addConstraint(Sketcher.Constraint("Distance", 25, 0.502473))
sketch1.addConstraint(Sketcher.Constraint("Distance", 26, 32.199644))
sketch1.addConstraint(Sketcher.Constraint("Distance", 28, 43.992167))
sketch1.addConstraint(Sketcher.Constraint("Distance", 32, 41.781873))
sketch1.addConstraint(Sketcher.Constraint("Distance", 34, 6.038884))
sketch1.addConstraint(Sketcher.Constraint("Distance", 43, 32.685554))
sketch1.addConstraint(Sketcher.Constraint("Distance", 47, 28.505175))
sketch1.addConstraint(Sketcher.Constraint("Distance", 52, 33.792882))
sketch1.addConstraint(Sketcher.Constraint("Distance", 57, 43.640424))
sketch1.addConstraint(Sketcher.Constraint("Distance", 61, 42.291055))
sketch1.addConstraint(Sketcher.Constraint("Distance", 64, 35.878073))
sketch1.addConstraint(Sketcher.Constraint("Distance", 71, 40.768937))
sketch1.addConstraint(Sketcher.Constraint("Distance", 81, 38.686364))
sketch1.addConstraint(Sketcher.Constraint("DistanceX", 0, 3, -1, 1, 0.328805))
sketch1.addConstraint(Sketcher.Constraint("DistanceX", 6, 3, -1, 1, 0.324553))
sketch1.addConstraint(Sketcher.Constraint("DistanceY", -1, 1, 12, 3, 105.960754))
sketch1.addConstraint(Sketcher.Constraint("DistanceX", -1, 1, 14, 3, 90.328796))
sketch1.addConstraint(Sketcher.Constraint("DistanceX", -1, 1, 27, 3, 43.015882))
sketch1.addConstraint(Sketcher.Constraint("DistanceY", 39, 3, -1, 1, 64.548373))
sketch1.addConstraint(Sketcher.Constraint("DistanceY", 56, 3, -1, 1, 1.577084))
sketch1.addConstraint(Sketcher.Constraint("DistanceY", 60, 3, -1, 1, 11.364245))
sketch1.addConstraint(Sketcher.Constraint("DistanceX", -1, 1, 63, 3, 54.447354))
sketch1.addConstraint(Sketcher.Constraint("DistanceY", -1, 1, 63, 3, 52.370708))
sketch1.addConstraint(Sketcher.Constraint("DistanceY", 67, 3, -1, 1, 163.930134))
sketch1.addConstraint(Sketcher.Constraint("DistanceX", -1, 1, 69, 3, 52.902157))
sketch1.addConstraint(Sketcher.Constraint("DistanceY", 69, 3, -1, 1, 192.655354))
sketch1.addConstraint(Sketcher.Constraint("DistanceY", 72, 3, -1, 1, 26.140187))
sketch1.addConstraint(Sketcher.Constraint("DistanceY", 80, 3, -1, 1, 205.710266))
sketch1.addConstraint(Sketcher.Constraint("DistanceX", -1, 1, 21, 2, 44.892246))
sketch1.addConstraint(Sketcher.Constraint("DistanceX", -1, 1, 22, 2, 44.951897))
sketch1.addConstraint(Sketcher.Constraint("DistanceX", -1, 1, 23, 2, 44.952764))
sketch1.addConstraint(Sketcher.Constraint("DistanceX", -1, 1, 24, 2, 44.956313))
sketch1.addConstraint(Sketcher.Constraint("DistanceY", 30, 2, -1, 1, 1.128253))
sketch1.addConstraint(Sketcher.Constraint("DistanceX", -1, 1, 35, 2, 44.603887))
sketch1.addConstraint(Sketcher.Constraint("DistanceX", -1, 1, 37, 2, 44.606063))
sketch1.addConstraint(Sketcher.Constraint("DistanceX", -1, 1, 40, 2, 44.634246))
sketch1.addConstraint(Sketcher.Constraint("DistanceY", 44, 1, -1, 1, 105.254758))
sketch1.addConstraint(Sketcher.Constraint("DistanceX", -1, 1, 49, 1, 1.999475))
sketch1.addConstraint(Sketcher.Constraint("DistanceX", -1, 1, 54, 2, 44.531555))
sketch1.addConstraint(Sketcher.Constraint("DistanceX", -1, 1, 56, 1, 41.787964))
sketch1.addConstraint(Sketcher.Constraint("DistanceY", 66, 2, -1, 1, 163.930135))
pad1 = body.newObject("PartDesign::Pad", "Pad")
pad1.Profile = sketch1
pad1.Length = 4

sketch2 = body.newObject("Sketcher::SketchObject", "Sketch001")
sketch2.AttachmentSupport = (doc.getObject("XZ_Plane"), [""])
sketch2.MapMode = "FlatFace"
sketch2.addGeometry(Part.LineSegment(V(132.914576, -275.868222, 0), V(132.914576, 94.131778, 0)), False)
sketch2.addGeometry(Part.ArcOfCircle(Part.Circle(V(127.914576, 94.131778, 0), V(0, 0, 1), 5), math.radians(-0.000004), math.radians(90.000004)), False)
sketch2.addGeometry(Part.LineSegment(V(127.914576, 99.131778, 0), V(90.743754, 99.131778, 0)), False)
sketch2.addGeometry(Part.ArcOfCircle(Part.Circle(V(90.743751, 94.131802, 0), V(0, 0, 1), 4.999976), math.radians(89.999963), math.radians(108.832032)), False)
sketch2.addGeometry(Part.LineSegment(V(89.129784, 98.864124, 0), V(0.784792, 68.733994, 0)), False)
sketch2.addGeometry(Part.ArcOfCircle(Part.Circle(V(-0.829187, 73.466389, 0), V(0, 0, 1), 5.000049), math.radians(-89.9999), math.radians(-71.168106)), False)
sketch2.addGeometry(Part.LineSegment(V(-0.829178, 68.46634, 0), V(-38, 68.46634, 0)), False)
sketch2.addGeometry(Part.ArcOfCircle(Part.Circle(V(-38, 63.46634, 0), V(0, 0, 1), 5), math.radians(89.999996), math.radians(180.000004)), False)
sketch2.addGeometry(Part.LineSegment(V(-43, 63.46634, 0), V(-43, -306.53366, 0)), False)
sketch2.addGeometry(Part.ArcOfCircle(Part.Circle(V(-38, -306.53366, 0), V(0, 0, 1), 5), math.radians(179.999996), math.radians(270.000004)), False)
sketch2.addGeometry(Part.LineSegment(V(-38, -311.53366, 0), V(-0.829178, -311.53366, 0)), False)
sketch2.addGeometry(Part.ArcOfCircle(Part.Circle(V(-0.829187, -306.533611, 0), V(0, 0, 1), 5.000049), math.radians(-89.9999), math.radians(-71.168106)), False)
sketch2.addGeometry(Part.LineSegment(V(0.784792, -311.266006, 0), V(89.129784, -281.135876, 0)), False)
sketch2.addGeometry(Part.ArcOfCircle(Part.Circle(V(90.743751, -285.868198, 0), V(0, 0, 1), 4.999976), math.radians(89.999963), math.radians(108.832032)), False)
sketch2.addGeometry(Part.LineSegment(V(90.743754, -280.868222, 0), V(127.914576, -280.868222, 0)), False)
sketch2.addGeometry(Part.ArcOfCircle(Part.Circle(V(127.914576, -275.868222, 0), V(0, 0, 1), 5), math.radians(-90.000004), math.radians(0.000004)), False)
sketch2.addGeometry(Part.LineSegment(V(122.914576, 84.131778, 0), V(122.914576, -265.868222, 0)), False)
sketch2.addGeometry(Part.ArcOfCircle(Part.Circle(V(117.914576, -265.868222, 0), V(0, 0, 1), 5), math.radians(-90.000004), math.radians(0.000004)), False)
sketch2.addGeometry(Part.LineSegment(V(117.914576, -270.868222, 0), V(90.743754, -270.868222, 0)), False)
sketch2.addGeometry(Part.ArcOfCircle(Part.Circle(V(90.743751, -275.868198, 0), V(0, 0, 1), 4.999976), math.radians(89.999963), math.radians(108.832032)), False)
sketch2.addGeometry(Part.LineSegment(V(89.129784, -271.135876, 0), V(0.784792, -301.266006, 0)), False)
sketch2.addGeometry(Part.ArcOfCircle(Part.Circle(V(-0.829187, -296.533611, 0), V(0, 0, 1), 5.000049), math.radians(-89.9999), math.radians(-71.168106)), False)
sketch2.addGeometry(Part.LineSegment(V(-0.829178, -301.53366, 0), V(-28, -301.53366, 0)), False)
sketch2.addGeometry(Part.ArcOfCircle(Part.Circle(V(-28, -296.53366, 0), V(0, 0, 1), 5), math.radians(179.999996), math.radians(270.000004)), False)
sketch2.addGeometry(Part.LineSegment(V(-33, -296.53366, 0), V(-33, 53.46634, 0)), False)
sketch2.addGeometry(Part.ArcOfCircle(Part.Circle(V(-28, 53.46634, 0), V(0, 0, 1), 5), math.radians(89.999996), math.radians(180.000004)), False)
sketch2.addGeometry(Part.LineSegment(V(-28, 58.46634, 0), V(-0.829178, 58.46634, 0)), False)
sketch2.addGeometry(Part.ArcOfCircle(Part.Circle(V(-0.829187, 63.466389, 0), V(0, 0, 1), 5.000049), math.radians(-89.9999), math.radians(-71.168106)), False)
sketch2.addGeometry(Part.LineSegment(V(0.784792, 58.733994, 0), V(89.129784, 88.864124, 0)), False)
sketch2.addGeometry(Part.ArcOfCircle(Part.Circle(V(90.743751, 84.131802, 0), V(0, 0, 1), 4.999976), math.radians(89.999963), math.radians(108.832032)), False)
sketch2.addGeometry(Part.LineSegment(V(90.743754, 89.131778, 0), V(117.914576, 89.131778, 0)), False)
sketch2.addGeometry(Part.ArcOfCircle(Part.Circle(V(117.914576, 84.131778, 0), V(0, 0, 1), 5), math.radians(-0.000004), math.radians(90.000004)), False)
sketch2.addConstraint(Sketcher.Constraint("Tangent", 0, 2, 1, 1))
sketch2.addConstraint(Sketcher.Constraint("Tangent", 1, 2, 2, 1))
sketch2.addConstraint(Sketcher.Constraint("Tangent", 2, 2, 3, 1))
sketch2.addConstraint(Sketcher.Constraint("Tangent", 3, 2, 4, 1))
sketch2.addConstraint(Sketcher.Constraint("Tangent", 4, 2, 5, 2))
sketch2.addConstraint(Sketcher.Constraint("Tangent", 5, 1, 6, 1))
sketch2.addConstraint(Sketcher.Constraint("Tangent", 6, 2, 7, 1))
sketch2.addConstraint(Sketcher.Constraint("Tangent", 7, 2, 8, 1))
sketch2.addConstraint(Sketcher.Constraint("Tangent", 8, 2, 9, 1))
sketch2.addConstraint(Sketcher.Constraint("Tangent", 9, 2, 10, 1))
sketch2.addConstraint(Sketcher.Constraint("Tangent", 10, 2, 11, 1))
sketch2.addConstraint(Sketcher.Constraint("Tangent", 11, 2, 12, 1))
sketch2.addConstraint(Sketcher.Constraint("Tangent", 12, 2, 13, 2))
sketch2.addConstraint(Sketcher.Constraint("Tangent", 13, 1, 14, 1))
sketch2.addConstraint(Sketcher.Constraint("Tangent", 14, 2, 15, 1))
sketch2.addConstraint(Sketcher.Constraint("Tangent", 15, 2, 0, 1))
sketch2.addConstraint(Sketcher.Constraint("Tangent", 16, 2, 17, 2))
sketch2.addConstraint(Sketcher.Constraint("Tangent", 17, 1, 18, 1))
sketch2.addConstraint(Sketcher.Constraint("Tangent", 18, 2, 19, 1))
sketch2.addConstraint(Sketcher.Constraint("Tangent", 19, 2, 20, 1))
sketch2.addConstraint(Sketcher.Constraint("Tangent", 20, 2, 21, 2))
sketch2.addConstraint(Sketcher.Constraint("Tangent", 21, 1, 22, 1))
sketch2.addConstraint(Sketcher.Constraint("Tangent", 22, 2, 23, 2))
sketch2.addConstraint(Sketcher.Constraint("Tangent", 23, 1, 24, 1))
sketch2.addConstraint(Sketcher.Constraint("Tangent", 24, 2, 25, 2))
sketch2.addConstraint(Sketcher.Constraint("Tangent", 25, 1, 26, 1))
sketch2.addConstraint(Sketcher.Constraint("Tangent", 26, 2, 27, 1))
sketch2.addConstraint(Sketcher.Constraint("Tangent", 27, 2, 28, 1))
sketch2.addConstraint(Sketcher.Constraint("Tangent", 28, 2, 29, 2))
sketch2.addConstraint(Sketcher.Constraint("Tangent", 29, 1, 30, 1))
sketch2.addConstraint(Sketcher.Constraint("Tangent", 30, 2, 31, 2))
sketch2.addConstraint(Sketcher.Constraint("Tangent", 31, 1, 16, 1))
sketch2.addConstraint(Sketcher.Constraint("Vertical", 0))
sketch2.addConstraint(Sketcher.Constraint("Horizontal", 2))
sketch2.addConstraint(Sketcher.Constraint("Horizontal", 6))
sketch2.addConstraint(Sketcher.Constraint("Vertical", 8))
sketch2.addConstraint(Sketcher.Constraint("Horizontal", 10))
sketch2.addConstraint(Sketcher.Constraint("Horizontal", 14))
sketch2.addConstraint(Sketcher.Constraint("Vertical", 16))
sketch2.addConstraint(Sketcher.Constraint("Horizontal", 18))
sketch2.addConstraint(Sketcher.Constraint("Horizontal", 22))
sketch2.addConstraint(Sketcher.Constraint("Vertical", 24))
sketch2.addConstraint(Sketcher.Constraint("Horizontal", 26))
sketch2.addConstraint(Sketcher.Constraint("Horizontal", 30))
sketch2.addConstraint(Sketcher.Constraint("Equal", 1, 7))
sketch2.addConstraint(Sketcher.Constraint("Equal", 7, 9))
sketch2.addConstraint(Sketcher.Constraint("Equal", 5, 11))
sketch2.addConstraint(Sketcher.Constraint("Equal", 3, 13))
sketch2.addConstraint(Sketcher.Constraint("Equal", 9, 15))
sketch2.addConstraint(Sketcher.Constraint("Equal", 15, 17))
sketch2.addConstraint(Sketcher.Constraint("Equal", 13, 19))
sketch2.addConstraint(Sketcher.Constraint("Equal", 11, 21))
sketch2.addConstraint(Sketcher.Constraint("Equal", 17, 23))
sketch2.addConstraint(Sketcher.Constraint("Equal", 23, 25))
sketch2.addConstraint(Sketcher.Constraint("Equal", 21, 27))
sketch2.addConstraint(Sketcher.Constraint("Equal", 19, 29))
sketch2.addConstraint(Sketcher.Constraint("Equal", 25, 31))
sketch2.addConstraint(Sketcher.Constraint("Parallel", 4, 12))
sketch2.addConstraint(Sketcher.Constraint("Parallel", 12, 20))
sketch2.addConstraint(Sketcher.Constraint("Parallel", 20, 28))
sketch2.addConstraint(Sketcher.Constraint("Vertical", 5, 3, 11, 3))
sketch2.addConstraint(Sketcher.Constraint("Vertical", 3, 3, 13, 3))
sketch2.addConstraint(Sketcher.Constraint("Vertical", 13, 3, 19, 3))
sketch2.addConstraint(Sketcher.Constraint("Vertical", 11, 3, 21, 3))
sketch2.addConstraint(Sketcher.Constraint("Vertical", 21, 3, 27, 3))
sketch2.addConstraint(Sketcher.Constraint("Vertical", 19, 3, 29, 3))
sketch2.addConstraint(Sketcher.Constraint("Equal", 2, 6))
sketch2.addConstraint(Sketcher.Constraint("Equal", 18, 22))
sketch2.addConstraint(Sketcher.Constraint("Radius", 1, 5.0))
sketch2.addConstraint(Sketcher.Constraint("DistanceY", 0, 1, 0, 2, 370.0))
sketch2.addConstraint(Sketcher.Constraint("DistanceY", 16, 2, 16, 1, 350.0))
sketch2.addConstraint(Sketcher.Constraint("DistanceX", 7, 3, -1, 1, 38.0))
sketch2.addConstraint(Sketcher.Constraint("DistanceX", 23, 3, -1, 1, 28.0))
sketch2.addConstraint(Sketcher.Constraint("DistanceY", 15, 3, 17, 3, 10.0))
sketch2.addConstraint(Sketcher.Constraint("Radius", 5, 5.000049))
sketch2.addConstraint(Sketcher.Constraint("Radius", 3, 4.999976))
sketch2.addConstraint(Sketcher.Constraint("DistanceY", -1, 1, 3, 3, 94.131802))
sketch2.addConstraint(Sketcher.Constraint("DistanceX", 2, 2, 2, 1, 37.170822))
sketch2.addConstraint(Sketcher.Constraint("DistanceX", -1, 1, 3, 3, 90.743751))
sketch2.addConstraint(Sketcher.Constraint("DistanceY", -1, 1, 5, 3, 73.466389))
pad2 = body.newObject("PartDesign::Pad", "Pad001")
pad2.Profile = sketch2
pad2.Length = 6

doc.recompute()
